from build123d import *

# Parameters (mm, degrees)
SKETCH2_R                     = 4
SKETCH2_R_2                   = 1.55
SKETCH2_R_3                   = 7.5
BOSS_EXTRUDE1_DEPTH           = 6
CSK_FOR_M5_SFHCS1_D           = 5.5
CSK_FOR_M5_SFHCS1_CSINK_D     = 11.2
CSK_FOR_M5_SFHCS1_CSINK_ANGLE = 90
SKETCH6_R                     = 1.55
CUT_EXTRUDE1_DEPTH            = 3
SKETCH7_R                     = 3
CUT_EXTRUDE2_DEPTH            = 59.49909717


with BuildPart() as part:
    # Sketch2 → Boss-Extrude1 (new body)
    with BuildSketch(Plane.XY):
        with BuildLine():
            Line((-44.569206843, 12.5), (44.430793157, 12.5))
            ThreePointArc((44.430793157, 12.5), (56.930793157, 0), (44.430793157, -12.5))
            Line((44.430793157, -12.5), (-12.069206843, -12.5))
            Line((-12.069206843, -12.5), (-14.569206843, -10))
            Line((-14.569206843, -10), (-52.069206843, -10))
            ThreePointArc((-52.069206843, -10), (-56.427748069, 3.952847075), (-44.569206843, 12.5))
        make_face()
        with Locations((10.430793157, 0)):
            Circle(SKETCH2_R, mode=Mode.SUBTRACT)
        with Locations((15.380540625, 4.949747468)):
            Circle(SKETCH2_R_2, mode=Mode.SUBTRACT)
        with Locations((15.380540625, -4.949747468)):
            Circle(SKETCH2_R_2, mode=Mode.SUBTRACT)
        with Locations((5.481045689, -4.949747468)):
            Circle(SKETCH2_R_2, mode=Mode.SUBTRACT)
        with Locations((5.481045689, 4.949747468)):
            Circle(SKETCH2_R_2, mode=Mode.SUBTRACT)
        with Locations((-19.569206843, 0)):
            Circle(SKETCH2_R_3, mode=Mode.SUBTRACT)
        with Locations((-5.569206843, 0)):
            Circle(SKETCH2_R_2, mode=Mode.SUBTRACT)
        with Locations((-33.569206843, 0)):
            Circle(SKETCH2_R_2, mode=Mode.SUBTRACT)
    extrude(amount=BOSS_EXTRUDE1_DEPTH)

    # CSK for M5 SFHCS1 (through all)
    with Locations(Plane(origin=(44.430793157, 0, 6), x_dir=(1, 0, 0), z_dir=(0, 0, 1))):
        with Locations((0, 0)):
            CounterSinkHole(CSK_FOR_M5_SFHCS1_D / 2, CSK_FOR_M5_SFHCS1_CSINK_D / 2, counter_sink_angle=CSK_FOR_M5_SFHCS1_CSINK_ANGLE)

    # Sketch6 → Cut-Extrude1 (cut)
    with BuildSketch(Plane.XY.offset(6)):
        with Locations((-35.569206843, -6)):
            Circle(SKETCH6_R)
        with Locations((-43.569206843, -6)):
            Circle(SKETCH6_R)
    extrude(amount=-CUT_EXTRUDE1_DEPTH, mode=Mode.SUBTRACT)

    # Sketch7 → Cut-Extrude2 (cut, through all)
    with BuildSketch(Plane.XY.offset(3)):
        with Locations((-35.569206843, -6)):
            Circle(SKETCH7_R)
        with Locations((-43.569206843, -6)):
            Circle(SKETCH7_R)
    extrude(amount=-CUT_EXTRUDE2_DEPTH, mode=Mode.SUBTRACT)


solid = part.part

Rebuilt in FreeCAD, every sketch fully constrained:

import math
import FreeCAD as App
import Part
import Sketcher
from FreeCAD import Vector
Q = App.Units.Quantity

doc = App.newDocument("Part")
body = doc.addObject("PartDesign::Body", "Body")

# Sketch on XY plane
sketch1 = doc.addObject("Sketcher::SketchObject", "Sketch")
body.addObject(sketch1)
sketch1.AttachmentSupport = (doc.XY_Plane, [""])
sketch1.MapMode = "FlatFace"
sketch1.addGeometry([
    Part.LineSegment(Vector(44.430793, 12.5, 0), Vector(-44.569207, 12.5, 0)),  # 0
    Part.ArcOfCircle(Part.Circle(Vector(-44.569207, 0, 0), Vector(0, 0, 1), 12.5), math.radians(90), math.radians(233.130102)),  # 1
    Part.LineSegment(Vector(-52.069207, -10, 0), Vector(-14.569207, -10, 0)),  # 2
    Part.LineSegment(Vector(-14.569207, -10, 0), Vector(-12.069207, -12.5, 0)),  # 3
    Part.LineSegment(Vector(-12.069207, -12.5, 0), Vector(44.430793, -12.5, 0)),  # 4
    Part.ArcOfCircle(Part.Circle(Vector(44.430793, 0, 0), Vector(0, 0, 1), 12.5), math.radians(-90), math.radians(90)),  # 5
    Part.Circle(Vector(15.380541, -4.949747, 0), Vector(0, 0, 1), 1.55),  # 6
    Part.Circle(Vector(5.481046, -4.949747, 0), Vector(0, 0, 1), 1.55),  # 7
    Part.Circle(Vector(10.430793, 0, 0), Vector(0, 0, 1), 4),  # 8
    Part.Circle(Vector(-5.569207, 0, 0), Vector(0, 0, 1), 1.55),  # 9
    Part.Circle(Vector(15.380541, 4.949747, 0), Vector(0, 0, 1), 1.55),  # 10
    Part.Circle(Vector(5.481046, 4.949747, 0), Vector(0, 0, 1), 1.55),  # 11
    Part.Circle(Vector(-19.569207, 0, 0), Vector(0, 0, 1), 7.5),  # 12
    Part.Circle(Vector(-33.569207, 0, 0), Vector(0, 0, 1), 1.55),  # 13
], False)
sketch1.addConstraint([
    Sketcher.Constraint("Tangent", 0, 2, 1, 1),
    Sketcher.Constraint("Coincident", 1, 2, 2, 1),
    Sketcher.Constraint("Coincident", 2, 2, 3, 1),
    Sketcher.Constraint("Coincident", 3, 2, 4, 1),
    Sketcher.Constraint("Tangent", 4, 2, 5, 1),
    Sketcher.Constraint("Tangent", 5, 2, 0, 1),
    Sketcher.Constraint("Horizontal", 0),
    Sketcher.Constraint("Horizontal", 2),
    Sketcher.Constraint("Horizontal", 4),
    Sketcher.Constraint("Equal", 1, 5),
    Sketcher.Constraint("Equal", 6, 7),
    Sketcher.Constraint("Equal", 7, 9),
    Sketcher.Constraint("Equal", 9, 10),
    Sketcher.Constraint("Equal", 10, 11),
    Sketcher.Constraint("Equal", 11, 13),
    Sketcher.Constraint("Symmetric", 6, 3, 10, 3, -1),
    Sketcher.Constraint("Symmetric", 7, 3, 11, 3, -1),
    Sketcher.Constraint("PointOnObject", 1, 3, -1),
    Sketcher.Constraint("PointOnObject", 8, 3, -1),
    Sketcher.Constraint("PointOnObject", 9, 3, -1),
    Sketcher.Constraint("PointOnObject", 12, 3, -1),
    Sketcher.Constraint("PointOnObject", 13, 3, -1),
    Sketcher.Constraint("Horizontal", 6, 3, 7, 3),
    Sketcher.Constraint("Diameter", 8, Q("8 mm")),
    Sketcher.Constraint("Diameter", 12, Q("15 mm")),
    Sketcher.Constraint("Diameter", 6, Q("3.1 mm")),
    Sketcher.Constraint("Radius", 1, Q("12.5 mm")),
    Sketcher.Constraint("DistanceX", 0, 2, 0, 1, Q("89 mm")),
    Sketcher.Constraint("Angle", 3, Q("-45 deg")),
    Sketcher.Constraint("DistanceX", 2, 1, 2, 2, Q("37.5 mm")),
    Sketcher.Constraint("DistanceX", 4, 1, 4, 2, Q("56.5 mm")),
    Sketcher.Constraint("DistanceX", 8, 3, 5, 3, Q("34 mm")),
    Sketcher.Constraint("DistanceX", 9, 3, 8, 3, Q("16 mm")),
    Sketcher.Constraint("DistanceX", 12, 3, 9, 3, Q("14 mm")),
    Sketcher.Constraint("DistanceX", 1, 3, 13, 3, Q("11 mm")),
    Sketcher.Constraint("DistanceX", -1, 1, 6, 3, Q("15.380541 mm")),
    Sketcher.Constraint("DistanceX", 1, 3, -1, 1, Q("44.569207 mm")),
    Sketcher.Constraint("DistanceY", 6, 3, -1, 1, Q("4.949747 mm")),
    Sketcher.Constraint("DistanceX", -1, 1, 7, 3, Q("5.481046 mm")),
])
pad1 = doc.addObject("PartDesign::Pad", "Pad")
body.addObject(pad1)
pad1.Profile = sketch1
pad1.Length = 6

# Sketch on XY plane
sketch2 = doc.addObject("Sketcher::SketchObject", "Sketch001")
body.addObject(sketch2)
sketch2.AttachmentSupport = (doc.XY_Plane, [""])
sketch2.MapMode = "FlatFace"
sketch2.AttachmentOffset = App.Placement(Vector(0, 0, 6), App.Rotation())
sketch2.addGeometry(Part.Circle(Vector(44.430793, 0, 0), Vector(0, 0, 1), 2.75), False)
sketch2.addConstraint([
    Sketcher.Constraint("PointOnObject", 0, 3, -1),
    Sketcher.Constraint("Diameter", 0, Q("5.5 mm")),
    Sketcher.Constraint("DistanceX", -1, 1, 0, 3, Q("44.430793 mm")),
])
doc.recompute()
hole = doc.addObject("PartDesign::Hole", "Hole")
body.addObject(hole)
hole.Profile = sketch2
hole.ThreadType = "None"
hole.Diameter = 5.5
hole.DepthType = "ThroughAll"
hole.HoleCutType = "Countersink"
hole.HoleCutDiameter = 11.2
hole.HoleCutCountersinkAngle = 90

# Sketch on XY plane
sketch3 = doc.addObject("Sketcher::SketchObject", "Sketch002")
body.addObject(sketch3)
sketch3.AttachmentSupport = (doc.XY_Plane, [""])
sketch3.MapMode = "FlatFace"
sketch3.AttachmentOffset = App.Placement(Vector(0, 0, 6), App.Rotation())
sketch3.addGeometry([
    Part.Circle(Vector(-35.569207, -6, 0), Vector(0, 0, 1), 1.55),
    Part.Circle(Vector(-43.569207, -6, 0), Vector(0, 0, 1), 1.55),
], False)
sketch3.addConstraint([
    Sketcher.Constraint("Equal", 0, 1),
    Sketcher.Constraint("Horizontal", 0, 3, 1, 3),
    Sketcher.Constraint("Diameter", 0, Q("3.1 mm")),
    Sketcher.Constraint("DistanceY", 0, 3, -1, 1, Q("6 mm")),
    Sketcher.Constraint("DistanceX", 1, 3, 0, 3, Q("8 mm")),
    Sketcher.Constraint("DistanceX", 0, 3, -1, 1, Q("35.569207 mm")),
])
pocket1 = doc.addObject("PartDesign::Pocket", "Pocket")
body.addObject(pocket1)
pocket1.Profile = sketch3
pocket1.Length = 3

# Sketch on XY plane
sketch4 = doc.addObject("Sketcher::SketchObject", "Sketch003")
body.addObject(sketch4)
sketch4.AttachmentSupport = (doc.XY_Plane, [""])
sketch4.MapMode = "FlatFace"
sketch4.AttachmentOffset = App.Placement(Vector(0, 0, 3), App.Rotation())
sketch4.addGeometry([
    Part.Circle(Vector(-35.569207, -6, 0), Vector(0, 0, 1), 3),
    Part.Circle(Vector(-43.569207, -6, 0), Vector(0, 0, 1), 3),
], False)
sketch4.addConstraint([
    Sketcher.Constraint("Equal", 0, 1),
    Sketcher.Constraint("Horizontal", 0, 3, 1, 3),
    Sketcher.Constraint("Diameter", 0, Q("6 mm")),
    Sketcher.Constraint("DistanceY", 0, 3, -1, 1, Q("6 mm")),
    Sketcher.Constraint("DistanceX", 1, 3, 0, 3, Q("8 mm")),
    Sketcher.Constraint("DistanceX", 0, 3, -1, 1, Q("35.569207 mm")),
])
pocket2 = doc.addObject("PartDesign::Pocket", "Pocket001")
body.addObject(pocket2)
pocket2.Profile = sketch4
pocket2.Type = "ThroughAll"

doc.recompute()
